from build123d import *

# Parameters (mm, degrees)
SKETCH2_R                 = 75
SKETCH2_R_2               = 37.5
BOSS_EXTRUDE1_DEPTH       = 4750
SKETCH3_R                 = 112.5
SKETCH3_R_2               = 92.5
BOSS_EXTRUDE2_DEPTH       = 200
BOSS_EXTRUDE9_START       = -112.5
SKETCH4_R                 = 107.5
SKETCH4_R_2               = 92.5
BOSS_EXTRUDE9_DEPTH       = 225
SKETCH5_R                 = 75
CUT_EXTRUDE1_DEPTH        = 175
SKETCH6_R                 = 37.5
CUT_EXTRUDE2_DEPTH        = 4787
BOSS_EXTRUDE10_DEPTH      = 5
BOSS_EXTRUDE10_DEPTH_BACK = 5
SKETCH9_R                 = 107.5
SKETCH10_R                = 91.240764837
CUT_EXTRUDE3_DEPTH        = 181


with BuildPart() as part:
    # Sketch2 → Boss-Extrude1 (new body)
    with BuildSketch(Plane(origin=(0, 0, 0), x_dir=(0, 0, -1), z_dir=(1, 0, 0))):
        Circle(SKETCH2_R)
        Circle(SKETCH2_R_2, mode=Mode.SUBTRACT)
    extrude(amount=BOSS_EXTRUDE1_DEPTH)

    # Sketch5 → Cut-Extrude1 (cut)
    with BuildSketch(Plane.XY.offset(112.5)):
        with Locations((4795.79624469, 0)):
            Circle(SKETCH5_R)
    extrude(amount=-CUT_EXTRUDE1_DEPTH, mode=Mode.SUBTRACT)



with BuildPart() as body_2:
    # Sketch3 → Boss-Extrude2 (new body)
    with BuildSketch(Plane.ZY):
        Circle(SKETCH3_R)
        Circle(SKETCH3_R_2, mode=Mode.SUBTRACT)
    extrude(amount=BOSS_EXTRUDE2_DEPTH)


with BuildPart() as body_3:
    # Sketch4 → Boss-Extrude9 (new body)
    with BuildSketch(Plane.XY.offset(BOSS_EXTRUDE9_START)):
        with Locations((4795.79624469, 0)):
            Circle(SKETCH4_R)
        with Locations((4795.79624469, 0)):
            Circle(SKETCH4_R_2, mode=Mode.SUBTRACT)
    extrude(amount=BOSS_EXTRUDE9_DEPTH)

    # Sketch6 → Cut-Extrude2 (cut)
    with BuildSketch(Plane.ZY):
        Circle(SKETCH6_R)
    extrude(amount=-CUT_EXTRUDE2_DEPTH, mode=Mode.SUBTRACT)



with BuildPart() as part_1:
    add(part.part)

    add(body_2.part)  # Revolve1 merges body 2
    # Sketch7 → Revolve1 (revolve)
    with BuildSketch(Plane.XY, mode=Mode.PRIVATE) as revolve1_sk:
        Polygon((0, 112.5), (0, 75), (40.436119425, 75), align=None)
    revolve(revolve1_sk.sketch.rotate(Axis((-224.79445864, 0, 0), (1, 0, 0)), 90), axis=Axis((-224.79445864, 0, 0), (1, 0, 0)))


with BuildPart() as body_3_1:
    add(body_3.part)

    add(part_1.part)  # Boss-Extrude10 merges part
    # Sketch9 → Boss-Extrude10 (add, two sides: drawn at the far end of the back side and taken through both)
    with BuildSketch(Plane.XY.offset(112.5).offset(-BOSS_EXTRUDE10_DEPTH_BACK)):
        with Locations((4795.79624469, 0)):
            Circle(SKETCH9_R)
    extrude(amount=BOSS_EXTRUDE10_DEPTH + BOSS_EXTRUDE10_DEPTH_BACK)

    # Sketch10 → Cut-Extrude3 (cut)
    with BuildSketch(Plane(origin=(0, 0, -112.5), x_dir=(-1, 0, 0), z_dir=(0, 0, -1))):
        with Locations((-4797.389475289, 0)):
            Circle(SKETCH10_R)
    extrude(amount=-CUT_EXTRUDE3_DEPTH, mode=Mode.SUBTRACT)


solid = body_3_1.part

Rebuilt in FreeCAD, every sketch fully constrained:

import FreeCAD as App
import Part
import Sketcher

V = App.Vector
Q = App.Units.Quantity

doc = App.newDocument("Part")
params = doc.addObject("Spreadsheet::Sheet", "Params")
for row, (alias, value) in enumerate([
    ("sketch1_diameter", "150 mm"),
    ("sketch1_diameter2", "75 mm"),
    ("pad1_length", "4750 mm"),
    ("sketch2_diameter", "150 mm"),
    ("pocket1_length", "175 mm"),
    ("sketch3_diameter", "225 mm"),
    ("sketch3_diameter2", "185 mm"),
    ("pad2_length", "200 mm"),
    ("sketch4_diameter", "215 mm"),
    ("sketch4_diameter2", "185 mm"),
    ("pad3_length", "225 mm"),
    ("sketch5_diameter", "75 mm"),
    ("pocket2_length", "4787 mm"),
    ("sketch6_height", "37.5 mm"),
    ("revolution_angle", "360 deg"),
    ("sketch7_diameter", "215 mm"),
    ("pad4_length", "5 mm"),
    ("pad4_length2", "5 mm"),
    ("pocket3_length", "181 mm"),
], start=1):
    params.set(f"A{row}", alias)
    params.set(f"B{row}", "=" + value)
    params.setAlias(f"B{row}", alias)

body = doc.addObject("PartDesign::Body", "Body")

sketch1 = body.newObject("Sketcher::SketchObject", "Sketch")
sketch1.AttachmentSupport = (doc.getObject("YZ_Plane"), [""])
sketch1.MapMode = "FlatFace"
sketch1.addGeometry([
    Part.Circle(V(0, 0, 0), V(0, 0, 1), 75),
    Part.Circle(V(0, 0, 0), V(0, 0, 1), 37.5),
], False)
sketch1.addConstraint([
    Sketcher.Constraint("Coincident", 0, 3, -1, 1),
    Sketcher.Constraint("Coincident", 1, 3, -1, 1),
    Sketcher.Constraint("Diameter", 0, Q("150 mm")),
    Sketcher.Constraint("Diameter", 1, Q("75 mm")),
])
sketch1.setExpression("Constraints[2]", "Params.sketch1_diameter")
sketch1.setExpression("Constraints[3]", "Params.sketch1_diameter2")
pad1 = body.newObject("PartDesign::Pad", "Pad")
pad1.Profile = sketch1
pad1.setExpression("Length", "Params.pad1_length")

sketch2 = body.newObject("Sketcher::SketchObject", "Sketch001")
sketch2.AttachmentSupport = (doc.getObject("XY_Plane"), [""])
sketch2.MapMode = "FlatFace"
sketch2.AttachmentOffset = App.Placement(V(0, 0, 112.5), App.Rotation())
sketch2.addGeometry(Part.Circle(V(4795.796245, 0, 0), V(0, 0, 1), 75), False)
sketch2.addConstraint([
    Sketcher.Constraint("PointOnObject", 0, 3, -1),
    Sketcher.Constraint("Diameter", 0, Q("150 mm")),
    Sketcher.Constraint("DistanceX", -1, 1, 0, 3, Q("4795.796245 mm")),
])
sketch2.setExpression("Constraints[1]", "Params.sketch2_diameter")
pocket1 = body.newObject("PartDesign::Pocket", "Pocket")
pocket1.Profile = sketch2
pocket1.setExpression("Length", "Params.pocket1_length")
body2 = doc.addObject("PartDesign::Body", "Body001")

sketch3 = body2.newObject("Sketcher::SketchObject", "Sketch002")
sketch3.AttachmentSupport = (doc.getObject("YZ_Plane001"), [""])
sketch3.MapMode = "FlatFace"
sketch3.addGeometry([
    Part.Circle(V(0, 0, 0), V(0, 0, 1), 112.5),
    Part.Circle(V(0, 0, 0), V(0, 0, 1), 92.5),
], False)
sketch3.addConstraint([
    Sketcher.Constraint("Coincident", 0, 3, -1, 1),
    Sketcher.Constraint("Coincident", 1, 3, -1, 1),
    Sketcher.Constraint("Diameter", 0, Q("225 mm")),
    Sketcher.Constraint("Diameter", 1, Q("185 mm")),
])
sketch3.setExpression("Constraints[2]", "Params.sketch3_diameter")
sketch3.setExpression("Constraints[3]", "Params.sketch3_diameter2")
pad2 = body2.newObject("PartDesign::Pad", "Pad001")
pad2.Profile = sketch3
pad2.setExpression("Length", "Params.pad2_length")
pad2.Reversed = True
body3 = doc.addObject("PartDesign::Body", "Body002")

sketch4 = body3.newObject("Sketcher::SketchObject", "Sketch003")
sketch4.AttachmentSupport = (doc.getObject("XY_Plane002"), [""])
sketch4.MapMode = "FlatFace"
sketch4.AttachmentOffset = App.Placement(V(0, 0, -112.5), App.Rotation())
sketch4.addGeometry([
    Part.Circle(V(4795.796245, 0, 0), V(0, 0, 1), 107.5),
    Part.Circle(V(4795.796245, 0, 0), V(0, 0, 1), 92.5),
], False)
sketch4.addConstraint([
    Sketcher.Constraint("Coincident", 1, 3, 0, 3),
    Sketcher.Constraint("PointOnObject", 0, 3, -1),
    Sketcher.Constraint("Diameter", 0, Q("215 mm")),
    Sketcher.Constraint("Diameter", 1, Q("185 mm")),
    Sketcher.Constraint("DistanceX", -1, 1, 0, 3, Q("4795.796245 mm")),
])
sketch4.setExpression("Constraints[2]", "Params.sketch4_diameter")
sketch4.setExpression("Constraints[3]", "Params.sketch4_diameter2")
pad3 = body3.newObject("PartDesign::Pad", "Pad002")
pad3.Profile = sketch4
pad3.setExpression("Length", "Params.pad3_length")

sketch5 = body3.newObject("Sketcher::SketchObject", "Sketch004")
sketch5.AttachmentSupport = (doc.getObject("YZ_Plane002"), [""])
sketch5.MapMode = "FlatFace"
sketch5.addGeometry(Part.Circle(V(0, 0, 0), V(0, 0, 1), 37.5), False)
sketch5.addConstraint([
    Sketcher.Constraint("Coincident", 0, 3, -1, 1),
    Sketcher.Constraint("Diameter", 0, Q("75 mm")),
])
sketch5.setExpression("Constraints[1]", "Params.sketch5_diameter")
pocket2 = body3.newObject("PartDesign::Pocket", "Pocket001")
pocket2.Profile = sketch5
pocket2.setExpression("Length", "Params.pocket2_length")
pocket2.Reversed = True
body.AllowCompound = True
doc.recompute()

boolean = body.newObject("PartDesign::Boolean", "Boolean")
boolean.Type = "Fuse"
boolean.addObjects([body2])

sketch6 = body.newObject("Sketcher::SketchObject", "Sketch005")
sketch6.AttachmentSupport = (doc.getObject("XY_Plane"), [""])
sketch6.MapMode = "FlatFace"
sketch6.addGeometry([
    Part.LineSegment(V(0, 112.5, 0), V(0, 75, 0)),
    Part.LineSegment(V(0, 75, 0), V(40.436119, 75, 0)),
    Part.LineSegment(V(40.436119, 75, 0), V(0, 112.5, 0)),
], False)
sketch6.addConstraint([
    Sketcher.Constraint("Coincident", 0, 2, 1, 1),
    Sketcher.Constraint("Coincident", 1, 2, 2, 1),
    Sketcher.Constraint("Coincident", 2, 2, 0, 1),
    Sketcher.Constraint("Vertical", 0),
    Sketcher.Constraint("Horizontal", 1),
    Sketcher.Constraint("PointOnObject", 0, 2, -2),
    Sketcher.Constraint("DistanceY", 0, 2, 0, 1, Q("37.5 mm")),
    Sketcher.Constraint("DistanceY", -1, 1, 0, 2, Q("75 mm")),
    Sketcher.Constraint("DistanceX", 1, 1, 1, 2, Q("40.436119 mm")),
])
sketch6.setExpression("Constraints[6]", "Params.sketch6_height")
revolution = body.newObject("PartDesign::Revolution", "Revolution")
revolution.Profile = sketch6
revolution.ReferenceAxis = (sketch6, ["H_Axis"])
revolution.setExpression("Angle", "Params.revolution_angle")
doc.recompute()

boolean2 = body3.newObject("PartDesign::Boolean", "Boolean001")
boolean2.Type = "Fuse"
boolean2.addObjects([body])

sketch7 = body3.newObject("Sketcher::SketchObject", "Sketch006")
sketch7.AttachmentSupport = (doc.getObject("XY_Plane002"), [""])
sketch7.MapMode = "FlatFace"
sketch7.AttachmentOffset = App.Placement(V(0, 0, 112.5), App.Rotation())
sketch7.addGeometry(Part.Circle(V(4795.796245, 0, 0), V(0, 0, 1), 107.5), False)
sketch7.addConstraint([
    Sketcher.Constraint("PointOnObject", 0, 3, -1),
    Sketcher.Constraint("Diameter", 0, Q("215 mm")),
    Sketcher.Constraint("DistanceX", -1, 1, 0, 3, Q("4795.796245 mm")),
])
sketch7.setExpression("Constraints[1]", "Params.sketch7_diameter")
pad4 = body3.newObject("PartDesign::Pad", "Pad003")
pad4.Profile = sketch7
pad4.Type = "TwoLengths"
pad4.setExpression("Length", "Params.pad4_length")
pad4.setExpression("Length2", "Params.pad4_length2")

sketch8 = body3.newObject("Sketcher::SketchObject", "Sketch007")
sketch8.AttachmentSupport = (doc.getObject("XY_Plane002"), [""])
sketch8.MapMode = "FlatFace"
sketch8.AttachmentOffset = App.Placement(V(0, 0, -112.5), App.Rotation())
sketch8.addGeometry(Part.Circle(V(4797.389475, 0, 0), V(0, 0, 1), 91.240765), False)
sketch8.addConstraint([
    Sketcher.Constraint("PointOnObject", 0, 3, -1),
    Sketcher.Constraint("Diameter", 0, Q("182.48153 mm")),
    Sketcher.Constraint("DistanceX", -1, 1, 0, 3, Q("4797.389475 mm")),
])
pocket3 = body3.newObject("PartDesign::Pocket", "Pocket002")
pocket3.Profile = sketch8
pocket3.setExpression("Length", "Params.pocket3_length")
pocket3.Reversed = True

doc.recompute()
